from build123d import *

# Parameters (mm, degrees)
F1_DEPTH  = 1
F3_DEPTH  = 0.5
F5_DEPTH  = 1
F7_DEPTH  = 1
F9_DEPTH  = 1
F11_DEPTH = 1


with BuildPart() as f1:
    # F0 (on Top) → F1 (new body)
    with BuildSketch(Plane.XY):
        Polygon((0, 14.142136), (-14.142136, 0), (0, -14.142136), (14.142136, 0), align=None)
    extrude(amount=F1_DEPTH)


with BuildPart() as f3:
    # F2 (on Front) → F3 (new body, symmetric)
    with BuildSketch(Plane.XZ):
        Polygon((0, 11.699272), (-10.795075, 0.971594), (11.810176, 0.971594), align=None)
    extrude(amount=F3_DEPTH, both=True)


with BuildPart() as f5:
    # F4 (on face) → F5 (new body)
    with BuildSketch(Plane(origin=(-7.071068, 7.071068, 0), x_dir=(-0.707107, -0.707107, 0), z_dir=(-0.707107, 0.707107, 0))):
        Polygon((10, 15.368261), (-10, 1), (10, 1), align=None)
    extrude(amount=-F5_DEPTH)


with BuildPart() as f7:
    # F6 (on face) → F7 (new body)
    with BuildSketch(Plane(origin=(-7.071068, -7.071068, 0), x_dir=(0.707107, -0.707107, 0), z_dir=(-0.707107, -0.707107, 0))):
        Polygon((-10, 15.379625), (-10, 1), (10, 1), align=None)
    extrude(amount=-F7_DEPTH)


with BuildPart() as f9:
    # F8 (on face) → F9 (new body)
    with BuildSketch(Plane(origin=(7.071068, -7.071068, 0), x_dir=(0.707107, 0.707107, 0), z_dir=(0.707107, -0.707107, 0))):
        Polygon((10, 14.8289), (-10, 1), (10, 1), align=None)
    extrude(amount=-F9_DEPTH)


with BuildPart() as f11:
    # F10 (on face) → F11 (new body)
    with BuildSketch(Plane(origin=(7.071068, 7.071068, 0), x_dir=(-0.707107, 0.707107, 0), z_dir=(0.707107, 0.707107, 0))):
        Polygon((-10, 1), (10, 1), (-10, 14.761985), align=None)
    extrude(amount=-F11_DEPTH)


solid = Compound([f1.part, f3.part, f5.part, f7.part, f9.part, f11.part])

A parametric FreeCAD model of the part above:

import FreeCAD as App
import Part
import Sketcher
from FreeCAD import Vector
Q = App.Units.Quantity


def add_polygon(sketch, points):
    """Adds a closed chain of lines whose ends are joined by coincident constraints."""
    first, n = sketch.GeometryCount, len(points)
    for a, b in zip(points, points[1:] + points[:1]):
        sketch.addGeometry(Part.LineSegment(App.Vector(*a, 0), App.Vector(*b, 0)), False)
    for i in range(n):
        sketch.addConstraint(Sketcher.Constraint("Coincident", first + i, 2, first + (i + 1) % n, 1))

doc = App.newDocument("Part")
body = doc.addObject("PartDesign::Body", "Body")

sketch1 = body.newObject("Sketcher::SketchObject", "Sketch")
sketch1.AttachmentSupport = (doc.getObject("XY_Plane"), [""])
sketch1.MapMode = "FlatFace"
add_polygon(sketch1, [(0, 14.142136), (-14.142136, 0), (0, -14.142136), (14.142136, 0)])
sketch1.addConstraint([
    Sketcher.Constraint("Symmetric", 0, 2, 2, 2, -1, 1),
    Sketcher.Constraint("Symmetric", 1, 2, 3, 2, -1, 1),
    Sketcher.Constraint("PointOnObject", 0, 2, -1),
    Sketcher.Constraint("PointOnObject", 1, 2, -2),
    Sketcher.Constraint("Perpendicular", 0, 1),
    Sketcher.Constraint("Distance", 0, Q("20.000001 mm")),
])
pad1 = body.newObject("PartDesign::Pad", "Pad")
pad1.Profile = sketch1
pad1.Length = 1
body2 = doc.addObject("PartDesign::Body", "Body001")

sketch2 = body2.newObject("Sketcher::SketchObject", "Sketch001")
sketch2.AttachmentSupport = (doc.getObject("XZ_Plane001"), [""])
sketch2.MapMode = "FlatFace"
add_polygon(sketch2, [(0, 11.699272), (-10.795075, 0.971594), (11.810176, 0.971594)])
sketch2.addConstraint([
    Sketcher.Constraint("Horizontal", 1),
    Sketcher.Constraint("PointOnObject", 2, 2, -2),
    Sketcher.Constraint("DistanceX", 1, 1, 1, 2, Q("22.605251 mm")),
    Sketcher.Constraint("Distance", 0, Q("15.218959 mm")),
    Sketcher.Constraint("Distance", 2, Q("15.955041 mm")),
    Sketcher.Constraint("DistanceY", -1, 1, 0, 2, Q("0.971594 mm")),
])
pad2 = body2.newObject("PartDesign::Pad", "Pad001")
pad2.Profile = sketch2
pad2.Length = 1
pad2.Midplane = True
body3 = doc.addObject("PartDesign::Body", "Body002")

sketch3 = body3.newObject("Sketcher::SketchObject", "Sketch002")
sketch3.Placement = App.Placement(Vector(-7.071068, 7.071068, 0), App.Rotation(Vector(-0.707106781, -0.707106781, 0), Vector(0, 0, 0.999999999), Vector(-0.707106781, 0.707106781, 0), "ZXY"))
add_polygon(sketch3, [(10, 15.368261), (-10, 1), (10, 1)])
sketch3.addConstraint([
    Sketcher.Constraint("Horizontal", 1),
    Sketcher.Constraint("Vertical", 2),
    Sketcher.Constraint("DistanceX", 1, 1, 1, 2, Q("20 mm")),
    Sketcher.Constraint("DistanceX", 0, 2, -1, 1, Q("10 mm")),
    Sketcher.Constraint("DistanceY", -1, 1, 0, 2, Q("1 mm")),
    Sketcher.Constraint("DistanceY", 2, 1, 2, 2, Q("14.368261 mm")),
])
pad3 = body3.newObject("PartDesign::Pad", "Pad002")
pad3.Profile = sketch3
pad3.Length = 1
pad3.Reversed = True
body4 = doc.addObject("PartDesign::Body", "Body003")

sketch4 = body4.newObject("Sketcher::SketchObject", "Sketch003")
sketch4.Placement = App.Placement(Vector(-7.071068, -7.071068, 0), App.Rotation(Vector(0.707106781, -0.707106781, 0), Vector(0, 0, 0.999999999), Vector(-0.707106781, -0.707106781, 0), "ZXY"))
add_polygon(sketch4, [(-10, 15.379625), (-10, 1), (10, 1)])
sketch4.addConstraint([
    Sketcher.Constraint("Vertical", 0),
    Sketcher.Constraint("Horizontal", 1),
    Sketcher.Constraint("DistanceX", 1, 1, 1, 2, Q("20 mm")),
    Sketcher.Constraint("DistanceX", 0, 2, -1, 1, Q("10 mm")),
    Sketcher.Constraint("DistanceY", -1, 1, 0, 2, Q("1 mm")),
    Sketcher.Constraint("DistanceY", 0, 2, 0, 1, Q("14.379625 mm")),
])
pad4 = body4.newObject("PartDesign::Pad", "Pad003")
pad4.Profile = sketch4
pad4.Length = 1
pad4.Reversed = True
body5 = doc.addObject("PartDesign::Body", "Body004")

sketch5 = body5.newObject("Sketcher::SketchObject", "Sketch004")
sketch5.Placement = App.Placement(Vector(7.071068, -7.071068, 0), App.Rotation(Vector(0.707106781, 0.707106781, 0), Vector(0, 0, 0.999999999), Vector(0.707106781, -0.707106781, 0), "ZXY"))
add_polygon(sketch5, [(10, 14.8289), (-10, 1), (10, 1)])
sketch5.addConstraint([
    Sketcher.Constraint("Horizontal", 1),
    Sketcher.Constraint("Vertical", 2),
    Sketcher.Constraint("DistanceX", 1, 1, 1, 2, Q("20 mm")),
    Sketcher.Constraint("DistanceX", 0, 2, -1, 1, Q("10 mm")),
    Sketcher.Constraint("DistanceY", -1, 1, 0, 2, Q("1 mm")),
    Sketcher.Constraint("DistanceY", 2, 1, 2, 2, Q("13.8289 mm")),
])
pad5 = body5.newObject("PartDesign::Pad", "Pad004")
pad5.Profile = sketch5
pad5.Length = 1
pad5.Reversed = True
body6 = doc.addObject("PartDesign::Body", "Body005")

sketch6 = body6.newObject("Sketcher::SketchObject", "Sketch005")
sketch6.Placement = App.Placement(Vector(7.071068, 7.071068, 0), App.Rotation(Vector(-0.707106781, 0.707106781, 0), Vector(0, 0, 0.999999999), Vector(0.707106781, 0.707106781, 0), "ZXY"))
add_polygon(sketch6, [(-10, 1), (10, 1), (-10, 14.761985)])
sketch6.addConstraint([
    Sketcher.Constraint("Horizontal", 0),
    Sketcher.Constraint("Vertical", 2),
    Sketcher.Constraint("DistanceX", 0, 1, 0, 2, Q("20 mm")),
    Sketcher.Constraint("DistanceX", -1, 1, 0, 2, Q("10 mm")),
    Sketcher.Constraint("DistanceY", -1, 1, 0, 2, Q("1 mm")),
    Sketcher.Constraint("Distance", 1, Q("24.277402 mm")),
])
pad6 = body6.newObject("PartDesign::Pad", "Pad005")
pad6.Profile = sketch6
pad6.Length = 1
pad6.Reversed = True

doc.recompute()
